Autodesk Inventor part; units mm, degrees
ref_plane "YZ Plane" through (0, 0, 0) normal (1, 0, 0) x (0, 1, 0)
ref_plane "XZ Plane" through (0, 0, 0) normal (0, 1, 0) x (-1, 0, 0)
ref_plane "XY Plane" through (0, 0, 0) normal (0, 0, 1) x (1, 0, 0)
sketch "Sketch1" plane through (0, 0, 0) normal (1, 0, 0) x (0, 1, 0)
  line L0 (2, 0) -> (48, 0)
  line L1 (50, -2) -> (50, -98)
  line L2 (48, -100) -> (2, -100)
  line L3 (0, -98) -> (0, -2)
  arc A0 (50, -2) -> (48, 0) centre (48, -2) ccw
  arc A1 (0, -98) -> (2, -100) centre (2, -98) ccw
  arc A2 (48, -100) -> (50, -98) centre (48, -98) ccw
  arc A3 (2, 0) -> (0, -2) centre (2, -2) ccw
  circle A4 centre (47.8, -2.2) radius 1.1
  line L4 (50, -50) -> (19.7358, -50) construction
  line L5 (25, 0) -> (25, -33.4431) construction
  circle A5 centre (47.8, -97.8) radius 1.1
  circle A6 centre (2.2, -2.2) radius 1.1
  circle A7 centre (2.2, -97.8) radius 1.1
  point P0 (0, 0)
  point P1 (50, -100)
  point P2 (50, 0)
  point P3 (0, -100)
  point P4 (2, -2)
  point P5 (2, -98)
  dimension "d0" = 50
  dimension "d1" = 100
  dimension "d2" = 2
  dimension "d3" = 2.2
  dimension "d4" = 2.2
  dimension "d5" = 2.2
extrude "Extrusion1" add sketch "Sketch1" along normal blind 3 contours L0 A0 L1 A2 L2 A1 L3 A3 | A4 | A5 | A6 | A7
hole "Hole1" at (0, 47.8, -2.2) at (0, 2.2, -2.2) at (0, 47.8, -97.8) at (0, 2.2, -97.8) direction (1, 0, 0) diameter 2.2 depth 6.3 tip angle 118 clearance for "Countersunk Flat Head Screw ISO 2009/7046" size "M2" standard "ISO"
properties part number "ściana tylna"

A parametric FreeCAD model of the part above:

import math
import FreeCAD as App
import Part
import Sketcher
Q = App.Units.Quantity

doc = App.newDocument("Part")
params = doc.addObject("Spreadsheet::Sheet", "Params")
for row, (alias, value) in enumerate([
    ("sketch1_radius", "2 mm"),
    ("pad1_length", "3 mm"),
    ("sketch2_diameter", "2.2 mm"),
    ("hole_diameter", "2.2 mm"),
    ("hole_depth", "6.3 mm"),
], start=1):
    params.set(f"A{row}", alias)
    params.set(f"B{row}", "=" + value)
    params.setAlias(f"B{row}", alias)

body = doc.addObject("PartDesign::Body", "Body")

# Sketch on YZ plane
sketch1 = body.newObject("Sketcher::SketchObject", "Sketch")
sketch1.AttachmentSupport = (doc.getObject("YZ_Plane"), [""])
sketch1.MapMode = "FlatFace"
sketch1.addGeometry([
    Part.LineSegment(App.Vector(48, 0, 0), App.Vector(2, 0, 0)),  # 0
    Part.ArcOfCircle(Part.Circle(App.Vector(2, -2, 0), App.Vector(0, 0, 1), 2), math.radians(90), math.radians(180)),  # 1
    Part.LineSegment(App.Vector(0, -2, 0), App.Vector(0, -98, 0)),  # 2
    Part.ArcOfCircle(Part.Circle(App.Vector(2, -98, 0), App.Vector(0, 0, 1), 2), math.radians(180), math.radians(270)),  # 3
    Part.LineSegment(App.Vector(2, -100, 0), App.Vector(48, -100, 0)),  # 4
    Part.ArcOfCircle(Part.Circle(App.Vector(48, -98, 0), App.Vector(0, 0, 1), 2), math.radians(-90), math.radians(0)),  # 5
    Part.LineSegment(App.Vector(50, -98, 0), App.Vector(50, -2, 0)),  # 6
    Part.ArcOfCircle(Part.Circle(App.Vector(48, -2, 0), App.Vector(0, 0, 1), 2), math.radians(0), math.radians(90)),  # 7
], False)
sketch1.addConstraint([
    Sketcher.Constraint("Tangent", 0, 2, 1, 1),
    Sketcher.Constraint("Tangent", 1, 2, 2, 1),
    Sketcher.Constraint("Tangent", 2, 2, 3, 1),
    Sketcher.Constraint("Tangent", 3, 2, 4, 1),
    Sketcher.Constraint("Tangent", 4, 2, 5, 1),
    Sketcher.Constraint("Tangent", 5, 2, 6, 1),
    Sketcher.Constraint("Tangent", 6, 2, 7, 1),
    Sketcher.Constraint("Tangent", 7, 2, 0, 1),
    Sketcher.Constraint("Horizontal", 0),
    Sketcher.Constraint("Vertical", 2),
    Sketcher.Constraint("Horizontal", 4),
    Sketcher.Constraint("Vertical", 6),
    Sketcher.Constraint("Equal", 1, 3),
    Sketcher.Constraint("Equal", 3, 5),
    Sketcher.Constraint("Equal", 5, 7),
    Sketcher.Constraint("PointOnObject", 0, 2, -1),
    Sketcher.Constraint("PointOnObject", 1, 2, -2),
    Sketcher.Constraint("Radius", 1, Q("2 mm")),
    Sketcher.Constraint("DistanceY", 3, 2, -1, 1, Q("100 mm")),
    Sketcher.Constraint("DistanceX", -1, 1, 5, 2, Q("50 mm")),
])
sketch1.setExpression("Constraints[17]", "Params.sketch1_radius")
pad1 = body.newObject("PartDesign::Pad", "Pad")
pad1.Profile = sketch1
pad1.setExpression("Length", "Params.pad1_length")

# Sketch on YZ plane
sketch2 = body.newObject("Sketcher::SketchObject", "Sketch001")
sketch2.AttachmentSupport = (doc.getObject("YZ_Plane"), [""])
sketch2.MapMode = "FlatFace"
sketch2.addGeometry([
    Part.Circle(App.Vector(47.8, -2.2, 0), App.Vector(0, 0, 1), 1.1),
    Part.Circle(App.Vector(2.2, -2.2, 0), App.Vector(0, 0, 1), 1.1),
    Part.Circle(App.Vector(47.8, -97.8, 0), App.Vector(0, 0, 1), 1.1),
    Part.Circle(App.Vector(2.2, -97.8, 0), App.Vector(0, 0, 1), 1.1),
], False)
sketch2.addConstraint([
    Sketcher.Constraint("Equal", 0, 1),
    Sketcher.Constraint("Equal", 1, 2),
    Sketcher.Constraint("Equal", 2, 3),
    Sketcher.Constraint("Horizontal", 0, 3, 1, 3),
    Sketcher.Constraint("Horizontal", 2, 3, 3, 3),
    Sketcher.Constraint("Vertical", 0, 3, 2, 3),
    Sketcher.Constraint("Vertical", 1, 3, 3, 3),
    Sketcher.Constraint("Diameter", 0, Q("2.2 mm")),
    Sketcher.Constraint("DistanceX", -1, 1, 0, 3, Q("47.8 mm")),
    Sketcher.Constraint("DistanceY", 0, 3, -1, 1, Q("2.2 mm")),
    Sketcher.Constraint("DistanceX", -1, 1, 1, 3, Q("2.2 mm")),
    Sketcher.Constraint("DistanceY", 2, 3, -1, 1, Q("97.8 mm")),
])
sketch2.setExpression("Constraints[7]", "Params.sketch2_diameter")
doc.recompute()
hole = body.newObject("PartDesign::Hole", "Hole")
hole.Profile = sketch2
hole.ThreadType = "None"
hole.setExpression("Diameter", "Params.hole_diameter")
hole.DepthType = "Dimension"
hole.setExpression("Depth", "Params.hole_depth")
hole.DrillPoint = "Angled"
hole.DrillPointAngle = 118
hole.Reversed = True

doc.recompute()
